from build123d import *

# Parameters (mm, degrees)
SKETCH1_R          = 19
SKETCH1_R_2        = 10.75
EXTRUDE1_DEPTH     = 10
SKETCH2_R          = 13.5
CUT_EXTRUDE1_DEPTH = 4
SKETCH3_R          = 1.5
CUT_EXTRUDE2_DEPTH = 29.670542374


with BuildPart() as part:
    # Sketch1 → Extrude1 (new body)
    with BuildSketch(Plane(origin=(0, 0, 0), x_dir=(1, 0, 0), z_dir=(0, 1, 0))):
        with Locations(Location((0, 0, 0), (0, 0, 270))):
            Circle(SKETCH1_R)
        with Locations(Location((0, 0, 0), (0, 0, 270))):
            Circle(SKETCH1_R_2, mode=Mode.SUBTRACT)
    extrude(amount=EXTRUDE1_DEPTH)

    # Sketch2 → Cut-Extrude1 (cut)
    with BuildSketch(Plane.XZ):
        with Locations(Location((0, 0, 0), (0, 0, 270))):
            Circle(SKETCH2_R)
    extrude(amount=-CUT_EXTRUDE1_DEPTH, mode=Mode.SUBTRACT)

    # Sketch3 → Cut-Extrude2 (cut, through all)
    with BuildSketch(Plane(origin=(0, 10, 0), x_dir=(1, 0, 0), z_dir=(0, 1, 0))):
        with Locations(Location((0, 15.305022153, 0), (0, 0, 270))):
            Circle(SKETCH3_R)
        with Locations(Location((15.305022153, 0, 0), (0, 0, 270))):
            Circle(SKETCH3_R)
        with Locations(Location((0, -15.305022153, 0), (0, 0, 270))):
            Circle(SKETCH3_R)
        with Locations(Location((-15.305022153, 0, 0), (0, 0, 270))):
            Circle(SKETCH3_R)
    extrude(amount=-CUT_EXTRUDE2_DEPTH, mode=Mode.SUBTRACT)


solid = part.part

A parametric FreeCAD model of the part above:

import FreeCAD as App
import Part
import Sketcher
from FreeCAD import Vector

doc = App.newDocument("Part")
body = doc.addObject("PartDesign::Body", "Body")

# Sketch on XZ plane
sketch1 = doc.addObject("Sketcher::SketchObject", "Sketch")
body.addObject(sketch1)
sketch1.AttachmentSupport = (doc.XZ_Plane, [""])
sketch1.MapMode = "FlatFace"
sketch1.addGeometry([
    Part.Circle(Vector(0, 0, 0), Vector(0, 0, 1), 19),
    Part.Circle(Vector(0, 0, 0), Vector(0, 0, 1), 11),
], False)
sketch1.addConstraint([
    Sketcher.Constraint("Coincident", 0, 3, -1, 1),
    Sketcher.Constraint("Coincident", 1, 3, -1, 1),
    Sketcher.Constraint("Diameter", 0, 38.0),
    Sketcher.Constraint("Diameter", 1, 21.5),
])
pad1 = doc.addObject("PartDesign::Pad", "Pad")
body.addObject(pad1)
pad1.Profile = sketch1
pad1.Length = 10
pad1.Reversed = True

# Sketch on XZ plane
sketch2 = doc.addObject("Sketcher::SketchObject", "Sketch001")
body.addObject(sketch2)
sketch2.AttachmentSupport = (doc.XZ_Plane, [""])
sketch2.MapMode = "FlatFace"
sketch2.addGeometry(Part.Circle(Vector(0, 0, 0), Vector(0, 0, 1), 14), False)
sketch2.addConstraint([
    Sketcher.Constraint("Coincident", 0, 3, -1, 1),
    Sketcher.Constraint("Diameter", 0, 27.0),
])
pocket1 = doc.addObject("PartDesign::Pocket", "Pocket")
body.addObject(pocket1)
pocket1.Profile = sketch2
pocket1.Length = 4

# Sketch on XZ plane
sketch3 = doc.addObject("Sketcher::SketchObject", "Sketch002")
body.addObject(sketch3)
sketch3.AttachmentSupport = (doc.XZ_Plane, [""])
sketch3.MapMode = "FlatFace"
sketch3.AttachmentOffset = App.Placement(Vector(0, 0, -10), App.Rotation())
sketch3.addGeometry([
    Part.Circle(Vector(0, -15.3, 0), Vector(0, 0, 1), 1.5),
    Part.Circle(Vector(15.3, 0, 0), Vector(0, 0, 1), 1.5),
    Part.Circle(Vector(0, 15.3, 0), Vector(0, 0, 1), 1.5),
    Part.Circle(Vector(-15.3, 0, 0), Vector(0, 0, 1), 1.5),
], False)
sketch3.addConstraint([
    Sketcher.Constraint("Equal", 0, 1),
    Sketcher.Constraint("Equal", 1, 2),
    Sketcher.Constraint("Equal", 2, 3),
    Sketcher.Constraint("Symmetric", 0, 3, 2, 3, -1, 1),
    Sketcher.Constraint("Symmetric", 1, 3, 3, 3, -1, 1),
    Sketcher.Constraint("PointOnObject", 0, 3, -2),
    Sketcher.Constraint("PointOnObject", 1, 3, -1),
    Sketcher.Constraint("Diameter", 0, 3.0),
    Sketcher.Constraint("DistanceY", 0, 3, -1, 1, 15.305022),
    Sketcher.Constraint("DistanceX", -1, 1, 1, 3, 15.305022),
])
pocket2 = doc.addObject("PartDesign::Pocket", "Pocket001")
body.addObject(pocket2)
pocket2.Profile = sketch3
pocket2.Type = "ThroughAll"
pocket2.Reversed = True

doc.recompute()
